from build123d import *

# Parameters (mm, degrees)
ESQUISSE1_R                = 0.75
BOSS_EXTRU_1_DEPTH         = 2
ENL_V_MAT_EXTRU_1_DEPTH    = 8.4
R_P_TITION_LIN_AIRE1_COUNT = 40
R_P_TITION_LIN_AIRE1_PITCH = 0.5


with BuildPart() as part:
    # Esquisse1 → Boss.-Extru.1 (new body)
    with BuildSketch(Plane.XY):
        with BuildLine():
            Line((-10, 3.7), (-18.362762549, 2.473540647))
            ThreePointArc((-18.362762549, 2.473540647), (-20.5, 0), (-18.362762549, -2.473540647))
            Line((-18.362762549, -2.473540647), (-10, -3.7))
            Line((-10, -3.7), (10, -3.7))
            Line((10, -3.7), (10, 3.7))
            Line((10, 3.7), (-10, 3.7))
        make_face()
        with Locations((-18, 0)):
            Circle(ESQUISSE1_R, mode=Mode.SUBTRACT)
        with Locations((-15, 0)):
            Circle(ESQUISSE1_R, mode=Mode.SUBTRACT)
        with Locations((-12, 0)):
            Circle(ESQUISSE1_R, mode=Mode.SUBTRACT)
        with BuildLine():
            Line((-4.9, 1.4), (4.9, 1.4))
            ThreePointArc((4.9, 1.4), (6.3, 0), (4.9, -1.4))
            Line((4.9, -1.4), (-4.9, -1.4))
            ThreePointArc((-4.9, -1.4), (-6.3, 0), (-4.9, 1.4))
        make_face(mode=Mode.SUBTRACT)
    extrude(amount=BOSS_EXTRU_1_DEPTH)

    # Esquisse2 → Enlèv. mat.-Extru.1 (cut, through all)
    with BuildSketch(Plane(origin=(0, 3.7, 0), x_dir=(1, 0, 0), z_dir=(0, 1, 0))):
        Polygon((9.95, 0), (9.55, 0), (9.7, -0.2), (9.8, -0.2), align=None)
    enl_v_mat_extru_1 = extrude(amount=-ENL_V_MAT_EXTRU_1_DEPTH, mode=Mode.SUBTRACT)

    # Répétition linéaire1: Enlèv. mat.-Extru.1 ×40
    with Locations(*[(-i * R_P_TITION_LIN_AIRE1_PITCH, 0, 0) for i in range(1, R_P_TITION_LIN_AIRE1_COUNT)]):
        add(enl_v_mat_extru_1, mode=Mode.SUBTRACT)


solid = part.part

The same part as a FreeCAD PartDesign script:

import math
import FreeCAD as App
import Part
import Sketcher
from FreeCAD import Vector
Q = App.Units.Quantity

doc = App.newDocument("Part")
body = doc.addObject("PartDesign::Body", "Body")

# Sketch on XY plane
sketch1 = doc.addObject("Sketcher::SketchObject", "Sketch")
body.addObject(sketch1)
sketch1.AttachmentSupport = (doc.XY_Plane, [""])
sketch1.MapMode = "FlatFace"
sketch1.addGeometry(Part.LineSegment(Vector(-10, 3.7, 0), Vector(-18.4, 2.5, 0)), False)
sketch1.addGeometry(Part.ArcOfCircle(Part.Circle(Vector(-18, 0, 0), Vector(0, 0, 1), 2.5), math.radians(98), math.radians(262)), False)
sketch1.addGeometry(Part.LineSegment(Vector(-18.4, -2.5, 0), Vector(-10, -3.7, 0)), False)
sketch1.addGeometry(Part.LineSegment(Vector(-10, -3.7, 0), Vector(10, -3.7, 0)), False)
sketch1.addGeometry(Part.LineSegment(Vector(10, -3.7, 0), Vector(10, 3.7, 0)), False)
sketch1.addGeometry(Part.LineSegment(Vector(10, 3.7, 0), Vector(-10, 3.7, 0)), False)
sketch1.addGeometry(Part.Circle(Vector(-18, 0, 0), Vector(0, 0, 1), 0.8), False)
sketch1.addGeometry(Part.Circle(Vector(-15, 0, 0), Vector(0, 0, 1), 0.8), False)
sketch1.addGeometry(Part.Circle(Vector(-12, 0, 0), Vector(0, 0, 1), 0.8), False)
sketch1.addGeometry(Part.ArcOfCircle(Part.Circle(Vector(-4.9, 0, 0), Vector(0, 0, 1), 1.4), math.radians(90), math.radians(270)), False)
sketch1.addGeometry(Part.LineSegment(Vector(-4.9, 1.4, 0), Vector(4.9, 1.4, 0)), False)
sketch1.addGeometry(Part.ArcOfCircle(Part.Circle(Vector(4.9, 0, 0), Vector(0, 0, 1), 1.4), math.radians(-90), math.radians(90)), False)
sketch1.addGeometry(Part.LineSegment(Vector(4.9, -1.4, 0), Vector(-4.9, -1.4, 0)), False)
sketch1.addConstraint(Sketcher.Constraint("Tangent", 0, 2, 1, 1))
sketch1.addConstraint(Sketcher.Constraint("Tangent", 1, 2, 2, 1))
sketch1.addConstraint(Sketcher.Constraint("Coincident", 2, 2, 3, 1))
sketch1.addConstraint(Sketcher.Constraint("Coincident", 3, 2, 4, 1))
sketch1.addConstraint(Sketcher.Constraint("Coincident", 4, 2, 5, 1))
sketch1.addConstraint(Sketcher.Constraint("Coincident", 5, 2, 0, 1))
sketch1.addConstraint(Sketcher.Constraint("Tangent", 9, 1, 10, 1))
sketch1.addConstraint(Sketcher.Constraint("Tangent", 10, 2, 11, 2))
sketch1.addConstraint(Sketcher.Constraint("Tangent", 11, 1, 12, 1))
sketch1.addConstraint(Sketcher.Constraint("Tangent", 12, 2, 9, 2))
sketch1.addConstraint(Sketcher.Constraint("Horizontal", 3))
sketch1.addConstraint(Sketcher.Constraint("Vertical", 4))
sketch1.addConstraint(Sketcher.Constraint("Horizontal", 5))
sketch1.addConstraint(Sketcher.Constraint("Horizontal", 10))
sketch1.addConstraint(Sketcher.Constraint("Horizontal", 12))
sketch1.addConstraint(Sketcher.Constraint("Coincident", 6, 3, 1, 3))
sketch1.addConstraint(Sketcher.Constraint("Equal", 6, 7))
sketch1.addConstraint(Sketcher.Constraint("Equal", 7, 8))
sketch1.addConstraint(Sketcher.Constraint("Symmetric", 9, 3, 11, 3, -1, 1))
sketch1.addConstraint(Sketcher.Constraint("Symmetric", 2, 2, 4, 2, -1, 1))
sketch1.addConstraint(Sketcher.Constraint("Symmetric", 0, 2, 1, 2, -1))
sketch1.addConstraint(Sketcher.Constraint("PointOnObject", 7, 3, -1))
sketch1.addConstraint(Sketcher.Constraint("PointOnObject", 8, 3, -1))
sketch1.addConstraint(Sketcher.Constraint("Diameter", 6, Q("1.5 mm")))
sketch1.addConstraint(Sketcher.Constraint("Radius", 1, Q("2.5 mm")))
sketch1.addConstraint(Sketcher.Constraint("Radius", 9, Q("1.4 mm")))
sketch1.addConstraint(Sketcher.Constraint("DistanceX", 3, 1, 3, 2, Q("20 mm")))
sketch1.addConstraint(Sketcher.Constraint("DistanceX", 10, 1, 10, 2, Q("9.8 mm")))
sketch1.addConstraint(Sketcher.Constraint("DistanceY", 4, 1, 4, 2, Q("7.4 mm")))
sketch1.addConstraint(Sketcher.Constraint("DistanceX", 1, 3, -1, 1, Q("18 mm")))
sketch1.addConstraint(Sketcher.Constraint("DistanceX", 7, 3, -1, 1, Q("15 mm")))
sketch1.addConstraint(Sketcher.Constraint("DistanceX", 8, 3, -1, 1, Q("12 mm")))
pad1 = doc.addObject("PartDesign::Pad", "Pad")
body.addObject(pad1)
pad1.Profile = sketch1
pad1.Length = 2

# Sketch on XZ plane
sketch2 = doc.addObject("Sketcher::SketchObject", "Sketch001")
body.addObject(sketch2)
sketch2.AttachmentSupport = (doc.XZ_Plane, [""])
sketch2.MapMode = "FlatFace"
sketch2.AttachmentOffset = App.Placement(Vector(0, 0, -3.7), App.Rotation())
sketch2.addGeometry(Part.LineSegment(Vector(9.95, 0, 0), Vector(9.55, 0, 0)), False)
sketch2.addGeometry(Part.LineSegment(Vector(9.55, 0, 0), Vector(9.7, 0.2, 0)), False)
sketch2.addGeometry(Part.LineSegment(Vector(9.7, 0.2, 0), Vector(9.8, 0.2, 0)), False)
sketch2.addGeometry(Part.LineSegment(Vector(9.8, 0.2, 0), Vector(9.95, 0, 0)), False)
sketch2.addConstraint(Sketcher.Constraint("Coincident", 0, 2, 1, 1))
sketch2.addConstraint(Sketcher.Constraint("Coincident", 1, 2, 2, 1))
sketch2.addConstraint(Sketcher.Constraint("Coincident", 2, 2, 3, 1))
sketch2.addConstraint(Sketcher.Constraint("Coincident", 3, 2, 0, 1))
sketch2.addConstraint(Sketcher.Constraint("Horizontal", 0))
sketch2.addConstraint(Sketcher.Constraint("Horizontal", 2))
sketch2.addConstraint(Sketcher.Constraint("PointOnObject", 0, 2, -1))
sketch2.addConstraint(Sketcher.Constraint("Equal", 1, 3))
sketch2.addConstraint(Sketcher.Constraint("DistanceX", 0, 2, 0, 1, Q("0.4 mm")))
sketch2.addConstraint(Sketcher.Constraint("DistanceX", 2, 1, 2, 2, Q("0.1 mm")))
sketch2.addConstraint(Sketcher.Constraint("DistanceX", -1, 1, 1, 2, Q("9.7 mm")))
sketch2.addConstraint(Sketcher.Constraint("DistanceY", -1, 1, 1, 2, Q("0.2 mm")))
pocket1 = doc.addObject("PartDesign::Pocket", "Pocket")
body.addObject(pocket1)
pocket1.Profile = sketch2
pocket1.Type = "ThroughAll"
pocket1.Reversed = True
doc.recompute()

linearpattern = doc.addObject("PartDesign::LinearPattern", "LinearPattern")
body.addObject(linearpattern)
linearpattern.Originals = [pocket1]
linearpattern.Direction = (doc.X_Axis, [""])
linearpattern.Mode = "offset"
linearpattern.Offset = 0.5
linearpattern.Occurrences = 40
linearpattern.Reversed = True
body.Tip = linearpattern

doc.recompute()
